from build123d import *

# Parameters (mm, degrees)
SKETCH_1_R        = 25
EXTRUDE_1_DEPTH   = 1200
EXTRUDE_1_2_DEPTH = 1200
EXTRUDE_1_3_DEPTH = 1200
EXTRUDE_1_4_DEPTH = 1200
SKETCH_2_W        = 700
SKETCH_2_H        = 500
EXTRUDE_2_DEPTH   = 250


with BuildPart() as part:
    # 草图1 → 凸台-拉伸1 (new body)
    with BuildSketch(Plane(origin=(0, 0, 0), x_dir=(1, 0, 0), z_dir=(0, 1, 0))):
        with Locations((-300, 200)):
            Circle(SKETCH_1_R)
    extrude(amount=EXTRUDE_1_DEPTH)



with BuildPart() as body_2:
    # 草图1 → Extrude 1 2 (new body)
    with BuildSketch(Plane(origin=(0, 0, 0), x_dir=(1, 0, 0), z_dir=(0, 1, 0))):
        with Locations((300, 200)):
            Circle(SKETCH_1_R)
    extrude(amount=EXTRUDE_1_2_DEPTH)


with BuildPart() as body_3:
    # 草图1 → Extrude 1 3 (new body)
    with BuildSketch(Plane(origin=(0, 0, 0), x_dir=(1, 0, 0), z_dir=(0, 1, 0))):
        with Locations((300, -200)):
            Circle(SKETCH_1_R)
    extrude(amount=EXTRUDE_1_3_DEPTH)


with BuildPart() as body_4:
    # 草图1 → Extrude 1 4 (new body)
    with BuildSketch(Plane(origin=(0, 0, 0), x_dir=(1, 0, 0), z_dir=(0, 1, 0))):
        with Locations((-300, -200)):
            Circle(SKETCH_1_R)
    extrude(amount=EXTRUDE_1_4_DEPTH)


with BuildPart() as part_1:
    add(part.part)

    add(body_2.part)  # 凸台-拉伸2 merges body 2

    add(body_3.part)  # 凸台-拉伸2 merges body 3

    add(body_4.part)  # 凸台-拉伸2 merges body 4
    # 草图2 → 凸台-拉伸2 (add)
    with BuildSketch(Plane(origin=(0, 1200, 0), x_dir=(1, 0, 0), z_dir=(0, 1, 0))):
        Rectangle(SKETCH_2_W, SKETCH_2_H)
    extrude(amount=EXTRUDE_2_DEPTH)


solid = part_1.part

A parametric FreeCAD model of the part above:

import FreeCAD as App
import Part
import Sketcher
Q = App.Units.Quantity

doc = App.newDocument("Part")
body = doc.addObject("PartDesign::Body", "Body")

# Sketch on XZ plane
sketch1 = doc.addObject("Sketcher::SketchObject", "Sketch")
body.addObject(sketch1)
sketch1.AttachmentSupport = (doc.XZ_Plane, [""])
sketch1.MapMode = "FlatFace"
sketch1.addGeometry(Part.Circle(App.Vector(-300, -200, 0), App.Vector(0, 0, 1), 25), False)
sketch1.addConstraint(Sketcher.Constraint("Diameter", 0, Q("50 mm")))
sketch1.addConstraint(Sketcher.Constraint("DistanceX", 0, 3, -1, 1, Q("300 mm")))
sketch1.addConstraint(Sketcher.Constraint("DistanceY", 0, 3, -1, 1, Q("200 mm")))
pad1 = doc.addObject("PartDesign::Pad", "Pad")
body.addObject(pad1)
pad1.Profile = sketch1
pad1.Length = 1200
pad1.Reversed = True
body2 = doc.addObject("PartDesign::Body", "Body001")

# Sketch on XZ plane
sketch2 = doc.addObject("Sketcher::SketchObject", "Sketch001")
body2.addObject(sketch2)
sketch2.AttachmentSupport = (doc.getObject("XZ_Plane001"), [""])
sketch2.MapMode = "FlatFace"
sketch2.addGeometry(Part.Circle(App.Vector(300, -200, 0), App.Vector(0, 0, 1), 25), False)
sketch2.addConstraint(Sketcher.Constraint("Diameter", 0, Q("50 mm")))
sketch2.addConstraint(Sketcher.Constraint("DistanceX", -1, 1, 0, 3, Q("300 mm")))
sketch2.addConstraint(Sketcher.Constraint("DistanceY", 0, 3, -1, 1, Q("200 mm")))
pad2 = doc.addObject("PartDesign::Pad", "Pad001")
body2.addObject(pad2)
pad2.Profile = sketch2
pad2.Length = 1200
pad2.Reversed = True
body3 = doc.addObject("PartDesign::Body", "Body002")

# Sketch on XZ plane
sketch3 = doc.addObject("Sketcher::SketchObject", "Sketch002")
body3.addObject(sketch3)
sketch3.AttachmentSupport = (doc.getObject("XZ_Plane002"), [""])
sketch3.MapMode = "FlatFace"
sketch3.addGeometry(Part.Circle(App.Vector(300, 200, 0), App.Vector(0, 0, 1), 25), False)
sketch3.addConstraint(Sketcher.Constraint("Diameter", 0, Q("50 mm")))
sketch3.addConstraint(Sketcher.Constraint("DistanceX", -1, 1, 0, 3, Q("300 mm")))
sketch3.addConstraint(Sketcher.Constraint("DistanceY", -1, 1, 0, 3, Q("200 mm")))
pad3 = doc.addObject("PartDesign::Pad", "Pad002")
body3.addObject(pad3)
pad3.Profile = sketch3
pad3.Length = 1200
pad3.Reversed = True
body4 = doc.addObject("PartDesign::Body", "Body003")

# Sketch on XZ plane
sketch4 = doc.addObject("Sketcher::SketchObject", "Sketch003")
body4.addObject(sketch4)
sketch4.AttachmentSupport = (doc.getObject("XZ_Plane003"), [""])
sketch4.MapMode = "FlatFace"
sketch4.addGeometry(Part.Circle(App.Vector(-300, 200, 0), App.Vector(0, 0, 1), 25), False)
sketch4.addConstraint(Sketcher.Constraint("Diameter", 0, Q("50 mm")))
sketch4.addConstraint(Sketcher.Constraint("DistanceX", 0, 3, -1, 1, Q("300 mm")))
sketch4.addConstraint(Sketcher.Constraint("DistanceY", -1, 1, 0, 3, Q("200 mm")))
pad4 = doc.addObject("PartDesign::Pad", "Pad003")
body4.addObject(pad4)
pad4.Profile = sketch4
pad4.Length = 1200
pad4.Reversed = True
body.AllowCompound = True
doc.recompute()

boolean = doc.addObject("PartDesign::Boolean", "Boolean")
body.addObject(boolean)
boolean.Type = "Fuse"
boolean.addObjects([body2])
doc.recompute()

boolean2 = doc.addObject("PartDesign::Boolean", "Boolean001")
body.addObject(boolean2)
boolean2.Type = "Fuse"
boolean2.addObjects([body3])
doc.recompute()

boolean3 = doc.addObject("PartDesign::Boolean", "Boolean002")
body.addObject(boolean3)
boolean3.Type = "Fuse"
boolean3.addObjects([body4])

# Sketch on XZ plane
sketch5 = doc.addObject("Sketcher::SketchObject", "Sketch004")
body.addObject(sketch5)
sketch5.AttachmentSupport = (doc.XZ_Plane, [""])
sketch5.MapMode = "FlatFace"
sketch5.AttachmentOffset = App.Placement(App.Vector(0, 0, -1200), App.Rotation())
sketch5.addGeometry(Part.LineSegment(App.Vector(-350, -250, 0), App.Vector(-350, 250, 0)), False)
sketch5.addGeometry(Part.LineSegment(App.Vector(-350, 250, 0), App.Vector(350, 250, 0)), False)
sketch5.addGeometry(Part.LineSegment(App.Vector(350, 250, 0), App.Vector(350, -250, 0)), False)
sketch5.addGeometry(Part.LineSegment(App.Vector(350, -250, 0), App.Vector(-350, -250, 0)), False)
sketch5.addConstraint(Sketcher.Constraint("Coincident", 0, 2, 1, 1))
sketch5.addConstraint(Sketcher.Constraint("Coincident", 1, 2, 2, 1))
sketch5.addConstraint(Sketcher.Constraint("Coincident", 2, 2, 3, 1))
sketch5.addConstraint(Sketcher.Constraint("Coincident", 3, 2, 0, 1))
sketch5.addConstraint(Sketcher.Constraint("Vertical", 0))
sketch5.addConstraint(Sketcher.Constraint("Horizontal", 1))
sketch5.addConstraint(Sketcher.Constraint("Vertical", 2))
sketch5.addConstraint(Sketcher.Constraint("Horizontal", 3))
sketch5.addConstraint(Sketcher.Constraint("Symmetric", 0, 2, 2, 2, -1, 1))
sketch5.addConstraint(Sketcher.Constraint("DistanceX", 1, 1, 1, 2, Q("700 mm")))
sketch5.addConstraint(Sketcher.Constraint("DistanceY", 0, 1, 0, 2, Q("500 mm")))
pad5 = doc.addObject("PartDesign::Pad", "Pad004")
body.addObject(pad5)
pad5.Profile = sketch5
pad5.Length = 250
pad5.Reversed = True

doc.recompute()
